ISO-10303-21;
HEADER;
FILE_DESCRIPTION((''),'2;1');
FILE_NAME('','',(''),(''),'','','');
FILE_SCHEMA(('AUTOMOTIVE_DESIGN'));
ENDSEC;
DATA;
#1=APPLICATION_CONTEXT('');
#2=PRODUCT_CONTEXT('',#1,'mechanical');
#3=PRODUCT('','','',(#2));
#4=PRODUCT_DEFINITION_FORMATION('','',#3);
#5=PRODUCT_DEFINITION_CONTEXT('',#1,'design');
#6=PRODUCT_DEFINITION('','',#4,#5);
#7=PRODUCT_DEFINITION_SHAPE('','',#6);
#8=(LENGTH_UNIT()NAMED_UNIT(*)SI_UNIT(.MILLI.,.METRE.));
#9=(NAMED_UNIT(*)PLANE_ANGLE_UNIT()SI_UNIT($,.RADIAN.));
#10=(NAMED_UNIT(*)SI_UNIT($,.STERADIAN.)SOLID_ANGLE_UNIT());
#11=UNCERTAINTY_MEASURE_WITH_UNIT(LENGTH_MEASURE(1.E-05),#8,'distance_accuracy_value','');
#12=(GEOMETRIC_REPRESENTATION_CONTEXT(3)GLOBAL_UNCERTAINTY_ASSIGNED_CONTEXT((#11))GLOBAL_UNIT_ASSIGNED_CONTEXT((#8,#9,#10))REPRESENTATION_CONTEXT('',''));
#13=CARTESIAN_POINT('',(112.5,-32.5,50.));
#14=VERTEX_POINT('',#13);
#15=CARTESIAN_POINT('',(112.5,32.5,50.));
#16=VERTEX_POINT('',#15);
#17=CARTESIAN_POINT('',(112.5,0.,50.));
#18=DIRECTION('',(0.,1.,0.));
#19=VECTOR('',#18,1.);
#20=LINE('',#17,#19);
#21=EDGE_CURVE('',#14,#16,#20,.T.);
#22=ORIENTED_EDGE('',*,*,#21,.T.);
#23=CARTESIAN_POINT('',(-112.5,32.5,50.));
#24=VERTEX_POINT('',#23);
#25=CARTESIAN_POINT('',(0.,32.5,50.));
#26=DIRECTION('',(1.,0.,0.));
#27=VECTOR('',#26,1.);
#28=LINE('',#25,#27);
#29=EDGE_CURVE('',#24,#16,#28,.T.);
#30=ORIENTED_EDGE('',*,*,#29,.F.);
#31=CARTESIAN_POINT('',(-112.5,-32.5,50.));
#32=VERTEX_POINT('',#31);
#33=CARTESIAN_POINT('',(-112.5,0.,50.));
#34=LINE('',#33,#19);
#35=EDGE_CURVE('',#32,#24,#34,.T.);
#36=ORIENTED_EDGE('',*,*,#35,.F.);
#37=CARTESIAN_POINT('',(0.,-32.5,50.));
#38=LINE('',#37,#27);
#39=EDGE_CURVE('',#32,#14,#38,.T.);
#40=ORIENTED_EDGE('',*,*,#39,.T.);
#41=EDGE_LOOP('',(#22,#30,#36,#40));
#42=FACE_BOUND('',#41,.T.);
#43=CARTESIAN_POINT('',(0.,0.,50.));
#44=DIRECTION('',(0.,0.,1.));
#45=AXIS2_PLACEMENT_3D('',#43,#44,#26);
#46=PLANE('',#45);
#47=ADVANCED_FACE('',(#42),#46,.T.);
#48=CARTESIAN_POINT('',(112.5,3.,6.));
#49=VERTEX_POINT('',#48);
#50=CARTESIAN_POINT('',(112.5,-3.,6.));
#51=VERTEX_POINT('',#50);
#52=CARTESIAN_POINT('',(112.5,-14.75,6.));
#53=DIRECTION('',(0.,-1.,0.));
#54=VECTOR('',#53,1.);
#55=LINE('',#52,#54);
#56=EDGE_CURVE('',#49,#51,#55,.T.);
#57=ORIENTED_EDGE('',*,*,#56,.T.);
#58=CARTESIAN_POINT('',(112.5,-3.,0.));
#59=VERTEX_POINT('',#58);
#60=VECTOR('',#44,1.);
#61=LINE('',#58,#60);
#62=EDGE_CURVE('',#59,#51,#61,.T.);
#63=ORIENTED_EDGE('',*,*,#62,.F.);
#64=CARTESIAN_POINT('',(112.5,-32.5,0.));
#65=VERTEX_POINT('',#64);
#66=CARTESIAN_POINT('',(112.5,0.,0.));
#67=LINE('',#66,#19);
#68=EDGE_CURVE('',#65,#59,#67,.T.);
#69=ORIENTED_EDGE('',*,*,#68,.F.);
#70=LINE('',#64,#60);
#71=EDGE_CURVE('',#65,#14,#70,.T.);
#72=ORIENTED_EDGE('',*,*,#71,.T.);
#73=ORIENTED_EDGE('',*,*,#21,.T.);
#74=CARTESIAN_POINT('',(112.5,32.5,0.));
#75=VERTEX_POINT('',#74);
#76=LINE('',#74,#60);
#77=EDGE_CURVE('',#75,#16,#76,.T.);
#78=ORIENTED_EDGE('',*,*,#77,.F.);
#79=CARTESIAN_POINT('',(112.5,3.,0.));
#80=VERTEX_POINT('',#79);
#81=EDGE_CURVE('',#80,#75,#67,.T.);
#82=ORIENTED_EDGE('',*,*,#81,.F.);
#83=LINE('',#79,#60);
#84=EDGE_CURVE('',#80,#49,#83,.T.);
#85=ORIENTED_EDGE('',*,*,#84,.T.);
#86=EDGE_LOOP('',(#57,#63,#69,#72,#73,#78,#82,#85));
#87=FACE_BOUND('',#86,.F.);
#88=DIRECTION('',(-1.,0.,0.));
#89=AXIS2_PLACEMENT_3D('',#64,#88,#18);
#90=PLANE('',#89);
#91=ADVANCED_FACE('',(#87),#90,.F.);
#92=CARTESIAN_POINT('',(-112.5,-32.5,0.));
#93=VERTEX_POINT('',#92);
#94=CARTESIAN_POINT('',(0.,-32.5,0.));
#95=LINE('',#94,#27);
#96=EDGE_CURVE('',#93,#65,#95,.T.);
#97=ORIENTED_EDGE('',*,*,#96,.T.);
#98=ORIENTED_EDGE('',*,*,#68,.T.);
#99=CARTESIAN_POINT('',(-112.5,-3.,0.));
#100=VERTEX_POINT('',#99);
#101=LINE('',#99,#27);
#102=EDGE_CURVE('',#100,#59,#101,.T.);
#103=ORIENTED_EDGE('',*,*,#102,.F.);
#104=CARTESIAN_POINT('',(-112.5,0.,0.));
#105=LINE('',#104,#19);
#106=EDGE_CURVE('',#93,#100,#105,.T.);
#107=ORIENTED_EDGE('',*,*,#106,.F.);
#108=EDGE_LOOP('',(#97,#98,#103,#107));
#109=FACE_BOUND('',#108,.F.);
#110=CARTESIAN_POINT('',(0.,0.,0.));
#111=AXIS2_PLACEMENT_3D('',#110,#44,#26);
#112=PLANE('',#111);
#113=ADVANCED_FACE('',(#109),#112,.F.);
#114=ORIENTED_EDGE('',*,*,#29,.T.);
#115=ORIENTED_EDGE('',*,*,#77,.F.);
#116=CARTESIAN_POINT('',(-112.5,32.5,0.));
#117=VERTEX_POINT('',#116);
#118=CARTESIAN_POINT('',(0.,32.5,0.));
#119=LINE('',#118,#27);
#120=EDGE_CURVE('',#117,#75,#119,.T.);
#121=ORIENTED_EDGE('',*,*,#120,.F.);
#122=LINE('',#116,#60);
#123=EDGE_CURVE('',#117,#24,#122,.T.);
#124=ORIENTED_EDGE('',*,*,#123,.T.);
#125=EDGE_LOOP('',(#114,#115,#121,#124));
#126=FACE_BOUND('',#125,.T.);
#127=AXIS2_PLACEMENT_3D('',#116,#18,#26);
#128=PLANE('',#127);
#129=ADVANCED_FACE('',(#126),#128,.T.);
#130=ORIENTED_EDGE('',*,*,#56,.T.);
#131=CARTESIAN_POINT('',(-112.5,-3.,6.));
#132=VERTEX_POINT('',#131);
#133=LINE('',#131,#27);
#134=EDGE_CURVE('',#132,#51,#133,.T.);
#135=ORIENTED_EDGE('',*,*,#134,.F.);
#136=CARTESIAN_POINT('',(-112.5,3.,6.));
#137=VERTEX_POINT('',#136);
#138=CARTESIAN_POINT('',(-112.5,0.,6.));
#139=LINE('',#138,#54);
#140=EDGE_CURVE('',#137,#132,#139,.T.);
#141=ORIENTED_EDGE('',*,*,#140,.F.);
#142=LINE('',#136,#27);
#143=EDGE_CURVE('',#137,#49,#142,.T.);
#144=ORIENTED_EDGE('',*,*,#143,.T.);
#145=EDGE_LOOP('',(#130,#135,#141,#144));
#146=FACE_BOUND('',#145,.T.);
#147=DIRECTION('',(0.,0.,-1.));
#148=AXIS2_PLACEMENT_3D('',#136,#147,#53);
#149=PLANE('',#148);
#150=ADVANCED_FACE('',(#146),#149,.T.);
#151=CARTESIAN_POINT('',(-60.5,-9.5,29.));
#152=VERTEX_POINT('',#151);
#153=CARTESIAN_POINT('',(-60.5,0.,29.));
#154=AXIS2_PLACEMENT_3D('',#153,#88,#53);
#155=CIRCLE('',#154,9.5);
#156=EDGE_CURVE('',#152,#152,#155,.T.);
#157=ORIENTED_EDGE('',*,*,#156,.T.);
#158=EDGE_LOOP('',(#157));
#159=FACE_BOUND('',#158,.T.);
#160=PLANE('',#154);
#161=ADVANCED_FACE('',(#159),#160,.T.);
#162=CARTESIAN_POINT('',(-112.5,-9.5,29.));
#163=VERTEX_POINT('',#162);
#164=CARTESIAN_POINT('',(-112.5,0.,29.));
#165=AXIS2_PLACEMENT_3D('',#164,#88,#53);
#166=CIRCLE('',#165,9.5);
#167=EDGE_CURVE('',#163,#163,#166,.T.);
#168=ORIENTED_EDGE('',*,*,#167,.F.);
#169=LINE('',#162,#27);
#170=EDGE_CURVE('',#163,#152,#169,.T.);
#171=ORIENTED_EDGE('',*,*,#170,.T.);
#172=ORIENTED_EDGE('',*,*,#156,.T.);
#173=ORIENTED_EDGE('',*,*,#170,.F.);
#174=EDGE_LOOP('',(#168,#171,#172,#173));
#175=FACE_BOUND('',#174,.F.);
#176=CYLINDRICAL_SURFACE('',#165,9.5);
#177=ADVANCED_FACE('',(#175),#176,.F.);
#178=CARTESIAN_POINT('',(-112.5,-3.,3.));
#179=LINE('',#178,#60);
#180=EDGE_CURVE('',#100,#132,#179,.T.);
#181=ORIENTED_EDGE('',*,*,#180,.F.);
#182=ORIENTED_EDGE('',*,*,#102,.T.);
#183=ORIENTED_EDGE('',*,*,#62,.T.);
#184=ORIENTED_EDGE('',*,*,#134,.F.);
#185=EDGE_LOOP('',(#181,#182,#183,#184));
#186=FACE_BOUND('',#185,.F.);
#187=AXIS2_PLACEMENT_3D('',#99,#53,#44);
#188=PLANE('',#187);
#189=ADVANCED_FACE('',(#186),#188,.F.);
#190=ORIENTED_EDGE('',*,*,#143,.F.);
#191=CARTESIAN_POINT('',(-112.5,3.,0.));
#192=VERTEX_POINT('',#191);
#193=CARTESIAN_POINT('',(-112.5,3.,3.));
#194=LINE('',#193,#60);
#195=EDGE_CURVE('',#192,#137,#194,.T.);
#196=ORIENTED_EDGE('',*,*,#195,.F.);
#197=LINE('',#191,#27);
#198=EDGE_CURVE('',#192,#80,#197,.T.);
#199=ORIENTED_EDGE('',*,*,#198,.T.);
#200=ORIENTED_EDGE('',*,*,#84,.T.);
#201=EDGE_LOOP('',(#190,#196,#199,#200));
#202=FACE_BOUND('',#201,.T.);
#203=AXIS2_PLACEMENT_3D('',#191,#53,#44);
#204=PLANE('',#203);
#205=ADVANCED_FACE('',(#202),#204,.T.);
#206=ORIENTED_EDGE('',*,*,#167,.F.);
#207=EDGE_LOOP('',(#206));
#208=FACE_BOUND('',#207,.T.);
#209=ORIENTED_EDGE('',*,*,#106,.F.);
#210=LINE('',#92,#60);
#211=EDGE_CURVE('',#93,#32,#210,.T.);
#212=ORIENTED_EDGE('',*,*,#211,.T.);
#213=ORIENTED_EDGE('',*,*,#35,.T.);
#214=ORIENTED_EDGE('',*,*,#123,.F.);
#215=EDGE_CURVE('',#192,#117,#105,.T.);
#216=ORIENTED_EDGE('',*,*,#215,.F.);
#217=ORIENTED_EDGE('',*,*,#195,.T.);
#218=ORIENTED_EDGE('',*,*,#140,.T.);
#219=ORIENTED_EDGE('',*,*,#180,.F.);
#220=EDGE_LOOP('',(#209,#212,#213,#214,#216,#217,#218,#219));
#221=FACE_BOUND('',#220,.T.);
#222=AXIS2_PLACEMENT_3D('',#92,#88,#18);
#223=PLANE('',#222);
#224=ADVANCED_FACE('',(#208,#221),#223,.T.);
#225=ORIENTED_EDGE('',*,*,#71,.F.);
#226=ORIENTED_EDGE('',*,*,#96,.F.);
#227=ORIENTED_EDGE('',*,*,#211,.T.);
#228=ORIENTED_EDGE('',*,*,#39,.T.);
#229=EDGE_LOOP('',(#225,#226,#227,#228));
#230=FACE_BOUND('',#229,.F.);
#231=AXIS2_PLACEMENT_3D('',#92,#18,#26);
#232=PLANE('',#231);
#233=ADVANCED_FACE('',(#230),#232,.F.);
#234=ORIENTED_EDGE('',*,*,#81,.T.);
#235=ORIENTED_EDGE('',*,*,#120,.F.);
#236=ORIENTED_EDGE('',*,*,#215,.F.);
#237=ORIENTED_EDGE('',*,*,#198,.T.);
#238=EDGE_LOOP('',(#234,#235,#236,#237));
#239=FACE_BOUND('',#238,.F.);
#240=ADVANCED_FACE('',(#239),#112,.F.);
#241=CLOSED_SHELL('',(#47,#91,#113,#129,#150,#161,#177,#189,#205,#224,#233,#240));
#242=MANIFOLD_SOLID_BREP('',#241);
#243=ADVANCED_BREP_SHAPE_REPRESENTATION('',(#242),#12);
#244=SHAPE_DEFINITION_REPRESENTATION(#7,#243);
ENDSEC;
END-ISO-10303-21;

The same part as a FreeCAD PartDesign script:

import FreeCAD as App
import Part
import Sketcher

V = App.Vector
Q = App.Units.Quantity

doc = App.newDocument("Part")
body = doc.addObject("PartDesign::Body", "Body")

# Sketch on XY plane
sketch1 = body.newObject("Sketcher::SketchObject", "Sketch")
sketch1.AttachmentSupport = (doc.getObject("XY_Plane"), [""])
sketch1.MapMode = "FlatFace"
sketch1.addGeometry([
    Part.LineSegment(V(-112, 32, 0), V(-112, -32, 0)),
    Part.LineSegment(V(-112, -32, 0), V(112, -32, 0)),
    Part.LineSegment(V(112, -32, 0), V(112, 32, 0)),
    Part.LineSegment(V(112, 32, 0), V(-112, 32, 0)),
], False)
sketch1.addConstraint([
    Sketcher.Constraint("Coincident", 0, 2, 1, 1),
    Sketcher.Constraint("Coincident", 1, 2, 2, 1),
    Sketcher.Constraint("Coincident", 2, 2, 3, 1),
    Sketcher.Constraint("Coincident", 3, 2, 0, 1),
    Sketcher.Constraint("Vertical", 0),
    Sketcher.Constraint("Horizontal", 1),
    Sketcher.Constraint("Vertical", 2),
    Sketcher.Constraint("Horizontal", 3),
    Sketcher.Constraint("Symmetric", 0, 2, 2, 2, -1, 1),
    Sketcher.Constraint("DistanceX", 1, 1, 1, 2, Q("225 mm")),
    Sketcher.Constraint("DistanceY", 0, 2, 0, 1, Q("65 mm")),
])
pad1 = body.newObject("PartDesign::Pad", "Pad")
pad1.Profile = sketch1
pad1.Length = 50

# Sketch on YZ plane
sketch2 = body.newObject("Sketcher::SketchObject", "Sketch001")
sketch2.AttachmentSupport = (doc.getObject("YZ_Plane"), [""])
sketch2.MapMode = "FlatFace"
sketch2.AttachmentOffset = App.Placement(V(0, 0, -112.5), App.Rotation())
sketch2.addGeometry(Part.Circle(V(0, 29, 0), V(0, 0, 1), 10), False)
sketch2.addConstraint([
    Sketcher.Constraint("PointOnObject", 0, 3, -2),
    Sketcher.Constraint("Diameter", 0, Q("19 mm")),
    Sketcher.Constraint("DistanceY", -1, 1, 0, 3, Q("29 mm")),
])
pocket1 = body.newObject("PartDesign::Pocket", "Pocket")
pocket1.Profile = sketch2
pocket1.Length = 52
pocket1.Reversed = True

# Sketch on YZ plane
sketch3 = body.newObject("Sketcher::SketchObject", "Sketch002")
sketch3.AttachmentSupport = (doc.getObject("YZ_Plane"), [""])
sketch3.MapMode = "FlatFace"
sketch3.AttachmentOffset = App.Placement(V(0, 0, -112.5), App.Rotation())
sketch3.addGeometry([
    Part.LineSegment(V(3, 6, 0), V(3, 0, 0)),
    Part.LineSegment(V(3, 0, 0), V(-3, 0, 0)),
    Part.LineSegment(V(-3, 0, 0), V(-3, 6, 0)),
    Part.LineSegment(V(-3, 6, 0), V(3, 6, 0)),
], False)
sketch3.addConstraint([
    Sketcher.Constraint("Coincident", 0, 2, 1, 1),
    Sketcher.Constraint("Coincident", 1, 2, 2, 1),
    Sketcher.Constraint("Coincident", 2, 2, 3, 1),
    Sketcher.Constraint("Coincident", 3, 2, 0, 1),
    Sketcher.Constraint("Vertical", 0),
    Sketcher.Constraint("Horizontal", 1),
    Sketcher.Constraint("Vertical", 2),
    Sketcher.Constraint("Horizontal", 3),
    Sketcher.Constraint("Symmetric", 0, 2, 1, 2, -1, 1),
    Sketcher.Constraint("Equal", 3, 0),
    Sketcher.Constraint("DistanceX", 1, 2, 1, 1, Q("6 mm")),
])
pocket2 = body.newObject("PartDesign::Pocket", "Pocket001")
pocket2.Profile = sketch3
pocket2.Length = 325
pocket2.Reversed = True

doc.recompute()
